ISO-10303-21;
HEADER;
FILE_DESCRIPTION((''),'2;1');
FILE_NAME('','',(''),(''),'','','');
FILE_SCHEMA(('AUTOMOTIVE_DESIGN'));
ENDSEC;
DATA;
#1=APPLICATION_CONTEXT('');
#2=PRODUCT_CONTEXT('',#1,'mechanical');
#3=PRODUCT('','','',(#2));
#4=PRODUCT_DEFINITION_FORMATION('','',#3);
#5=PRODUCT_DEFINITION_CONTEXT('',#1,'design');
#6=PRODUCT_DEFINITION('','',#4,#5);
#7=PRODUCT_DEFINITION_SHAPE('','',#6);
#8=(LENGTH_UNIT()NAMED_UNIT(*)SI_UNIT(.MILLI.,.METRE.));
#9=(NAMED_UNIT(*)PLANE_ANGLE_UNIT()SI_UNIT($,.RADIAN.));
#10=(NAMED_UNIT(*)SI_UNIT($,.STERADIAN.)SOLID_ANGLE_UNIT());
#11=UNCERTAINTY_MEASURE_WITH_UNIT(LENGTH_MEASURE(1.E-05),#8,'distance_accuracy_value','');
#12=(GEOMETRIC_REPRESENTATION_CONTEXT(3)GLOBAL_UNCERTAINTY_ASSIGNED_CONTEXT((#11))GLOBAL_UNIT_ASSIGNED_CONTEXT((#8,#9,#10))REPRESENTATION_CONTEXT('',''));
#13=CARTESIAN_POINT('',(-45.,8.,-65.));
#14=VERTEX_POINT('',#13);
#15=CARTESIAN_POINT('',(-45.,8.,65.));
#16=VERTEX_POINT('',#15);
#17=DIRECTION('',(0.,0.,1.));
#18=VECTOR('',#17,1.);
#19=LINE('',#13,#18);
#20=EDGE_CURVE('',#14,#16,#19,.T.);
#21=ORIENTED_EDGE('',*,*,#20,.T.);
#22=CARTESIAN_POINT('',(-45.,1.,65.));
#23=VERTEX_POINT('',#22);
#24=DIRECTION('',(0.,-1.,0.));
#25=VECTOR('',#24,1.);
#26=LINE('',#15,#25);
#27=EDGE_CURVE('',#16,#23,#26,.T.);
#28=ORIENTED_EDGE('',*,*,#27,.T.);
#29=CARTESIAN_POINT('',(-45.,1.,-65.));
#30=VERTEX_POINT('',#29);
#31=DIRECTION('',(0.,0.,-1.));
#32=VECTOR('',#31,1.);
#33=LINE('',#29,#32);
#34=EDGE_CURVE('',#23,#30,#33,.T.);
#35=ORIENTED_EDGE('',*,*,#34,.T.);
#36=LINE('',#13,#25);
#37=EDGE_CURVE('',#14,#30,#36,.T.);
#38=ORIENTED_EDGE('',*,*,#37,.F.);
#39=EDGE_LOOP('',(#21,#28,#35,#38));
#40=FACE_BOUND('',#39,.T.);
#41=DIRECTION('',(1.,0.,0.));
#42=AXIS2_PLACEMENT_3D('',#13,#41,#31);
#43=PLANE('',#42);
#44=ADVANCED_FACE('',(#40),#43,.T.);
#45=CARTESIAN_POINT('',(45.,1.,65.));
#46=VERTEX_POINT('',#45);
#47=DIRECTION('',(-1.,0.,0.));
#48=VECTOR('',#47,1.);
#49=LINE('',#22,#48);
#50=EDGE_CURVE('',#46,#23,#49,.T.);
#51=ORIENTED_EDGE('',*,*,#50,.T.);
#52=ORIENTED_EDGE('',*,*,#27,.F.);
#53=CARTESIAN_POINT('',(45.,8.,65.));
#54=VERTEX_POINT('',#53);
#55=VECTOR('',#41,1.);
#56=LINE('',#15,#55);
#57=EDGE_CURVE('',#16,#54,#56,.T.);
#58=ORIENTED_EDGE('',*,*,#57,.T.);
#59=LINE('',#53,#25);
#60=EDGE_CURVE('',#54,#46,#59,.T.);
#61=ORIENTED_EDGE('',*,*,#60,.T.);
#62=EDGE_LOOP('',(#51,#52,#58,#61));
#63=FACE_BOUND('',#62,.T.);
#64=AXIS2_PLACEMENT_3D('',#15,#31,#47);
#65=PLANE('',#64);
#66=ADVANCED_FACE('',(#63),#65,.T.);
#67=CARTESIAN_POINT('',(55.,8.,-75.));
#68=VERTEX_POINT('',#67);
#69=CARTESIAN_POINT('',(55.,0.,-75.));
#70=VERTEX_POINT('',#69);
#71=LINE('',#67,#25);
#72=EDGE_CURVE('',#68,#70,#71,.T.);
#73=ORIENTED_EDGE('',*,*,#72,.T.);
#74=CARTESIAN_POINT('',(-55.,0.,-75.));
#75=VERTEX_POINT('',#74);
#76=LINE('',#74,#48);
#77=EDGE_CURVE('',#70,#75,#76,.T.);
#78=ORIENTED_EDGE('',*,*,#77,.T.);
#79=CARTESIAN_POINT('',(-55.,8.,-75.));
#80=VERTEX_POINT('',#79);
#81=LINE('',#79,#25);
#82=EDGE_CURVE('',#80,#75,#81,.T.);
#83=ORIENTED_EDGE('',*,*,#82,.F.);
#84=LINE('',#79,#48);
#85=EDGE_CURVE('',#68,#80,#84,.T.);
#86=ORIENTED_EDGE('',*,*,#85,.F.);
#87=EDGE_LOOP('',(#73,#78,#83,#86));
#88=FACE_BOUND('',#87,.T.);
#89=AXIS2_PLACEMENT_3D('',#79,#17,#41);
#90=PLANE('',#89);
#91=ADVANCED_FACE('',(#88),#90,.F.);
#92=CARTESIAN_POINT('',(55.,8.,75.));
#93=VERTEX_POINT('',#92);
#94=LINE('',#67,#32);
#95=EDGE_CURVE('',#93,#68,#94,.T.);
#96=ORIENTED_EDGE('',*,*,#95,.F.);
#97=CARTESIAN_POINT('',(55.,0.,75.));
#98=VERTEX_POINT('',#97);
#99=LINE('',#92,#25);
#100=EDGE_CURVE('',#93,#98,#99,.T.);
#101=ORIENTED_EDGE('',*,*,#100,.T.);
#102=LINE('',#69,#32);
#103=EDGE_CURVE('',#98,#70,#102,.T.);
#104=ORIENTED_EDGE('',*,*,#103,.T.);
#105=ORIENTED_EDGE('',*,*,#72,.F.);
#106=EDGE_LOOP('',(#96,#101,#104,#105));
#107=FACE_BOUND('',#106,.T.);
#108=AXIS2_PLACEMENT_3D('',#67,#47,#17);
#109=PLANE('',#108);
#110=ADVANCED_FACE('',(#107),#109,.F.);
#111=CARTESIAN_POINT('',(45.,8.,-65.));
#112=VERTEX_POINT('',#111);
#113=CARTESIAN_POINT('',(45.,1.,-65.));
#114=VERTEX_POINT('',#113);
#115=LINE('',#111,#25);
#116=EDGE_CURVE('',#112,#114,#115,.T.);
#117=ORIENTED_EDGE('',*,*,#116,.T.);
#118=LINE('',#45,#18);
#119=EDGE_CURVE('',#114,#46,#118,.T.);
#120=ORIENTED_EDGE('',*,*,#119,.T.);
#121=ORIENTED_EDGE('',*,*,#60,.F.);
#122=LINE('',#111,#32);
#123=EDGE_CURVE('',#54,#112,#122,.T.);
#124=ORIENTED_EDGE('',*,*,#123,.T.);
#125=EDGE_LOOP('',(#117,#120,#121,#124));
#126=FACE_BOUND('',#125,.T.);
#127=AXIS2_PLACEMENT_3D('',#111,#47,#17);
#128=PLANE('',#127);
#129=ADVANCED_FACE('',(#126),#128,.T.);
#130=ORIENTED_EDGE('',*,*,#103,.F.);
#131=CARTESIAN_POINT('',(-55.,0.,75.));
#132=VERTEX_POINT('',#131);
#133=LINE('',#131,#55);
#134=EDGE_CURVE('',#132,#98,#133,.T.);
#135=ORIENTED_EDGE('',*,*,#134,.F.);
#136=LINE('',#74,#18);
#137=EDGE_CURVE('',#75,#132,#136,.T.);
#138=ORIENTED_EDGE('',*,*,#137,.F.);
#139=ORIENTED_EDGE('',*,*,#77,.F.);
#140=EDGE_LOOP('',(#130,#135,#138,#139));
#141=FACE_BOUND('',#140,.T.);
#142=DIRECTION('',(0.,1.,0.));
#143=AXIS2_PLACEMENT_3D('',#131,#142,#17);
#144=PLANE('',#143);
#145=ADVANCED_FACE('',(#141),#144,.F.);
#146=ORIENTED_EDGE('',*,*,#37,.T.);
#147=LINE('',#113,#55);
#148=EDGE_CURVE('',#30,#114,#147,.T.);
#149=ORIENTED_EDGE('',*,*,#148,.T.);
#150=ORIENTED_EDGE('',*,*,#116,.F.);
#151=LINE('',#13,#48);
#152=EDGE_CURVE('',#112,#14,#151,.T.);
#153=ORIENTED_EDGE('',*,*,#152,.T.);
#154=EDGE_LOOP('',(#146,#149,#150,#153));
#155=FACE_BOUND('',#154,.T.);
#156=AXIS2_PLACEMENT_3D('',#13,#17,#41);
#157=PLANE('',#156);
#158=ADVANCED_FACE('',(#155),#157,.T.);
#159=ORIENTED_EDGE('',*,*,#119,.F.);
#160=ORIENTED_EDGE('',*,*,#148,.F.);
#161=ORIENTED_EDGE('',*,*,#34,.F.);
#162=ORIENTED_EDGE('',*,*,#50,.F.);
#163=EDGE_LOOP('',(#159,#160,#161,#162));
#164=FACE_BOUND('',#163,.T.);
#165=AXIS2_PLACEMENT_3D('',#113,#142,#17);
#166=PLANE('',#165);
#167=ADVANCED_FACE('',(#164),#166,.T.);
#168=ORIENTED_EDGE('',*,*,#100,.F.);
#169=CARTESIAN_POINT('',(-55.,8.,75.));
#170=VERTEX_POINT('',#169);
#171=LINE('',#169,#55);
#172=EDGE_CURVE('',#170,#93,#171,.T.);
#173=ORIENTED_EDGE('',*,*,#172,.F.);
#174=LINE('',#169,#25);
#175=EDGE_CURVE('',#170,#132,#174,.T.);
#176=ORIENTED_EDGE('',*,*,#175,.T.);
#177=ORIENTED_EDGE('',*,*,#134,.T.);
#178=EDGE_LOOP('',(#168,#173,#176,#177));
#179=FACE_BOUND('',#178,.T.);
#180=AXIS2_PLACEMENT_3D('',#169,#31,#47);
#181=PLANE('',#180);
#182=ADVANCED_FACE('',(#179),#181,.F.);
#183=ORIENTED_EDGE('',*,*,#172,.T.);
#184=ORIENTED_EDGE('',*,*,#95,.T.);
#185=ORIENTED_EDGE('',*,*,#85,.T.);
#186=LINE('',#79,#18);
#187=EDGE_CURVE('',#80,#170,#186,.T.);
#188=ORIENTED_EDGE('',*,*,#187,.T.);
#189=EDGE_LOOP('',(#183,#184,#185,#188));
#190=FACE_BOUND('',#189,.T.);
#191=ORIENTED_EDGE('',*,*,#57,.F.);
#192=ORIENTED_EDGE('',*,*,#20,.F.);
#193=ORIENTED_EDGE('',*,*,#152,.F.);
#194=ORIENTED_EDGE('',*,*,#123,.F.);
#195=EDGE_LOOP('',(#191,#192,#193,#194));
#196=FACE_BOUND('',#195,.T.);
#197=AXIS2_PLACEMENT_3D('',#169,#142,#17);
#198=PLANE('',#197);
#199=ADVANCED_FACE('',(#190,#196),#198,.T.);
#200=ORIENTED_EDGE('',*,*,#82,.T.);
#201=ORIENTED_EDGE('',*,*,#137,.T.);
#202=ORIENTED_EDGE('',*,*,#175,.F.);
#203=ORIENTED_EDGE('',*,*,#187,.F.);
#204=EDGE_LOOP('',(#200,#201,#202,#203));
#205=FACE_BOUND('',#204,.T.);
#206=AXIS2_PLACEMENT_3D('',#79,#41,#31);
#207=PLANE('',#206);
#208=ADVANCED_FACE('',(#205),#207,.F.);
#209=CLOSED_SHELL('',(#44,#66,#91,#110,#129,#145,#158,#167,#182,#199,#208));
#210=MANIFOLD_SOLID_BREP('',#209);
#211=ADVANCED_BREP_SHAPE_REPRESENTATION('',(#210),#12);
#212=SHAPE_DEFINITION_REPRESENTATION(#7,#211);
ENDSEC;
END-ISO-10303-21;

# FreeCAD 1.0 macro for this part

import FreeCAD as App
import Part
import Sketcher

V = App.Vector
Q = App.Units.Quantity

doc = App.newDocument("Part")
body = doc.addObject("PartDesign::Body", "Body")

sketch1 = body.newObject("Sketcher::SketchObject", "Sketch")
sketch1.AttachmentSupport = (doc.getObject("XZ_Plane"), [""])
sketch1.MapMode = "FlatFace"
sketch1.addGeometry([
    Part.LineSegment(V(-55, -75, 0), V(-55, 75, 0)),
    Part.LineSegment(V(-55, 75, 0), V(55, 75, 0)),
    Part.LineSegment(V(55, 75, 0), V(55, -75, 0)),
    Part.LineSegment(V(55, -75, 0), V(-55, -75, 0)),
    Part.LineSegment(V(45, 65, 0), V(-45, 65, 0)),
    Part.LineSegment(V(-45, 65, 0), V(-45, -65, 0)),
    Part.LineSegment(V(-45, -65, 0), V(45, -65, 0)),
    Part.LineSegment(V(45, -65, 0), V(45, 65, 0)),
], False)
sketch1.addConstraint([
    Sketcher.Constraint("Coincident", 0, 2, 1, 1),
    Sketcher.Constraint("Coincident", 1, 2, 2, 1),
    Sketcher.Constraint("Coincident", 2, 2, 3, 1),
    Sketcher.Constraint("Coincident", 3, 2, 0, 1),
    Sketcher.Constraint("Coincident", 4, 2, 5, 1),
    Sketcher.Constraint("Coincident", 5, 2, 6, 1),
    Sketcher.Constraint("Coincident", 6, 2, 7, 1),
    Sketcher.Constraint("Coincident", 7, 2, 4, 1),
    Sketcher.Constraint("Vertical", 0),
    Sketcher.Constraint("Horizontal", 1),
    Sketcher.Constraint("Vertical", 2),
    Sketcher.Constraint("Horizontal", 3),
    Sketcher.Constraint("Horizontal", 4),
    Sketcher.Constraint("Vertical", 5),
    Sketcher.Constraint("Horizontal", 6),
    Sketcher.Constraint("Vertical", 7),
    Sketcher.Constraint("Symmetric", 0, 2, 2, 2, -1, 1),
    Sketcher.Constraint("Symmetric", 4, 2, 6, 2, -1, 1),
    Sketcher.Constraint("DistanceX", 1, 1, 1, 2, Q("110 mm")),
    Sketcher.Constraint("DistanceX", 4, 2, 4, 1, Q("90 mm")),
    Sketcher.Constraint("DistanceY", 0, 1, 0, 2, Q("150 mm")),
    Sketcher.Constraint("DistanceY", 5, 2, 5, 1, Q("130 mm")),
])
pad1 = body.newObject("PartDesign::Pad", "Pad")
pad1.Profile = sketch1
pad1.Length = 8
pad1.Reversed = True

sketch2 = body.newObject("Sketcher::SketchObject", "Sketch001")
sketch2.AttachmentSupport = (doc.getObject("XZ_Plane"), [""])
sketch2.MapMode = "FlatFace"
sketch2.addGeometry([
    Part.LineSegment(V(-45, 65, 0), V(-45, -65, 0)),
    Part.LineSegment(V(-45, -65, 0), V(45, -65, 0)),
    Part.LineSegment(V(45, -65, 0), V(45, 65, 0)),
    Part.LineSegment(V(45, 65, 0), V(-45, 65, 0)),
], False)
sketch2.addConstraint([
    Sketcher.Constraint("Coincident", 0, 2, 1, 1),
    Sketcher.Constraint("Coincident", 1, 2, 2, 1),
    Sketcher.Constraint("Coincident", 2, 2, 3, 1),
    Sketcher.Constraint("Coincident", 3, 2, 0, 1),
    Sketcher.Constraint("Vertical", 0),
    Sketcher.Constraint("Horizontal", 1),
    Sketcher.Constraint("Vertical", 2),
    Sketcher.Constraint("Horizontal", 3),
    Sketcher.Constraint("Symmetric", 0, 2, 2, 2, -1, 1),
    Sketcher.Constraint("DistanceX", 1, 1, 1, 2, Q("90 mm")),
    Sketcher.Constraint("DistanceY", 0, 2, 0, 1, Q("130 mm")),
])
pad2 = body.newObject("PartDesign::Pad", "Pad001")
pad2.Profile = sketch2
pad2.Length = 1
pad2.Reversed = True

doc.recompute()
